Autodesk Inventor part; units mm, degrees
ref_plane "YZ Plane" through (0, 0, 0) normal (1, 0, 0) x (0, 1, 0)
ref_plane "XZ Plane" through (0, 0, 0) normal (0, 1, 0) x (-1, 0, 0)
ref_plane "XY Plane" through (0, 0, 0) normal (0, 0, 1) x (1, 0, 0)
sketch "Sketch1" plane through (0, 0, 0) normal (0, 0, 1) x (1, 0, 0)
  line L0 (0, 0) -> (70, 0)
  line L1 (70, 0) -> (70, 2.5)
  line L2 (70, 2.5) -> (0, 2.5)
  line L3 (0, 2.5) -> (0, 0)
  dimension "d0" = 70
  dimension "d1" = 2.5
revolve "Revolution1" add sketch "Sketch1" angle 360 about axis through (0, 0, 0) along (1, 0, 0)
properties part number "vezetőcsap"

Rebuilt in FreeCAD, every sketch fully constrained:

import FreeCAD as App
import Part
import Sketcher

V = App.Vector

doc = App.newDocument("Part")
params = doc.addObject("Spreadsheet::Sheet", "Params")
for row, (alias, value) in enumerate([
    ("sketch1_width", "70 mm"),
    ("sketch1_height", "2.5 mm"),
    ("revolution_angle", "360 deg"),
], start=1):
    params.set(f"A{row}", alias)
    params.set(f"B{row}", "=" + value)
    params.setAlias(f"B{row}", alias)

body = doc.addObject("PartDesign::Body", "Body")

# Sketch on XY plane
sketch1 = body.newObject("Sketcher::SketchObject", "Sketch")
sketch1.AttachmentSupport = (doc.getObject("XY_Plane"), [""])
sketch1.MapMode = "FlatFace"
sketch1.addGeometry([
    Part.LineSegment(V(0, 2.5, 0), V(0, 0, 0)),
    Part.LineSegment(V(0, 0, 0), V(70, 0, 0)),
    Part.LineSegment(V(70, 0, 0), V(70, 2.5, 0)),
    Part.LineSegment(V(70, 2.5, 0), V(0, 2.5, 0)),
], False)
sketch1.addConstraint([
    Sketcher.Constraint("Coincident", 0, 2, 1, 1),
    Sketcher.Constraint("Coincident", 1, 2, 2, 1),
    Sketcher.Constraint("Coincident", 2, 2, 3, 1),
    Sketcher.Constraint("Coincident", 3, 2, 0, 1),
    Sketcher.Constraint("Vertical", 0),
    Sketcher.Constraint("Horizontal", 1),
    Sketcher.Constraint("Vertical", 2),
    Sketcher.Constraint("Horizontal", 3),
    Sketcher.Constraint("Coincident", 0, 2, -1, 1),
    Sketcher.Constraint("DistanceX", 1, 1, 1, 2, 70.0),
    Sketcher.Constraint("DistanceY", 0, 2, 0, 1, 2.5),
])
sketch1.setExpression("Constraints[9]", "Params.sketch1_width")
sketch1.setExpression("Constraints[10]", "Params.sketch1_height")
revolution = body.newObject("PartDesign::Revolution", "Revolution")
revolution.Profile = sketch1
revolution.ReferenceAxis = (sketch1, ["H_Axis"])
revolution.setExpression("Angle", "Params.revolution_angle")

doc.recompute()
